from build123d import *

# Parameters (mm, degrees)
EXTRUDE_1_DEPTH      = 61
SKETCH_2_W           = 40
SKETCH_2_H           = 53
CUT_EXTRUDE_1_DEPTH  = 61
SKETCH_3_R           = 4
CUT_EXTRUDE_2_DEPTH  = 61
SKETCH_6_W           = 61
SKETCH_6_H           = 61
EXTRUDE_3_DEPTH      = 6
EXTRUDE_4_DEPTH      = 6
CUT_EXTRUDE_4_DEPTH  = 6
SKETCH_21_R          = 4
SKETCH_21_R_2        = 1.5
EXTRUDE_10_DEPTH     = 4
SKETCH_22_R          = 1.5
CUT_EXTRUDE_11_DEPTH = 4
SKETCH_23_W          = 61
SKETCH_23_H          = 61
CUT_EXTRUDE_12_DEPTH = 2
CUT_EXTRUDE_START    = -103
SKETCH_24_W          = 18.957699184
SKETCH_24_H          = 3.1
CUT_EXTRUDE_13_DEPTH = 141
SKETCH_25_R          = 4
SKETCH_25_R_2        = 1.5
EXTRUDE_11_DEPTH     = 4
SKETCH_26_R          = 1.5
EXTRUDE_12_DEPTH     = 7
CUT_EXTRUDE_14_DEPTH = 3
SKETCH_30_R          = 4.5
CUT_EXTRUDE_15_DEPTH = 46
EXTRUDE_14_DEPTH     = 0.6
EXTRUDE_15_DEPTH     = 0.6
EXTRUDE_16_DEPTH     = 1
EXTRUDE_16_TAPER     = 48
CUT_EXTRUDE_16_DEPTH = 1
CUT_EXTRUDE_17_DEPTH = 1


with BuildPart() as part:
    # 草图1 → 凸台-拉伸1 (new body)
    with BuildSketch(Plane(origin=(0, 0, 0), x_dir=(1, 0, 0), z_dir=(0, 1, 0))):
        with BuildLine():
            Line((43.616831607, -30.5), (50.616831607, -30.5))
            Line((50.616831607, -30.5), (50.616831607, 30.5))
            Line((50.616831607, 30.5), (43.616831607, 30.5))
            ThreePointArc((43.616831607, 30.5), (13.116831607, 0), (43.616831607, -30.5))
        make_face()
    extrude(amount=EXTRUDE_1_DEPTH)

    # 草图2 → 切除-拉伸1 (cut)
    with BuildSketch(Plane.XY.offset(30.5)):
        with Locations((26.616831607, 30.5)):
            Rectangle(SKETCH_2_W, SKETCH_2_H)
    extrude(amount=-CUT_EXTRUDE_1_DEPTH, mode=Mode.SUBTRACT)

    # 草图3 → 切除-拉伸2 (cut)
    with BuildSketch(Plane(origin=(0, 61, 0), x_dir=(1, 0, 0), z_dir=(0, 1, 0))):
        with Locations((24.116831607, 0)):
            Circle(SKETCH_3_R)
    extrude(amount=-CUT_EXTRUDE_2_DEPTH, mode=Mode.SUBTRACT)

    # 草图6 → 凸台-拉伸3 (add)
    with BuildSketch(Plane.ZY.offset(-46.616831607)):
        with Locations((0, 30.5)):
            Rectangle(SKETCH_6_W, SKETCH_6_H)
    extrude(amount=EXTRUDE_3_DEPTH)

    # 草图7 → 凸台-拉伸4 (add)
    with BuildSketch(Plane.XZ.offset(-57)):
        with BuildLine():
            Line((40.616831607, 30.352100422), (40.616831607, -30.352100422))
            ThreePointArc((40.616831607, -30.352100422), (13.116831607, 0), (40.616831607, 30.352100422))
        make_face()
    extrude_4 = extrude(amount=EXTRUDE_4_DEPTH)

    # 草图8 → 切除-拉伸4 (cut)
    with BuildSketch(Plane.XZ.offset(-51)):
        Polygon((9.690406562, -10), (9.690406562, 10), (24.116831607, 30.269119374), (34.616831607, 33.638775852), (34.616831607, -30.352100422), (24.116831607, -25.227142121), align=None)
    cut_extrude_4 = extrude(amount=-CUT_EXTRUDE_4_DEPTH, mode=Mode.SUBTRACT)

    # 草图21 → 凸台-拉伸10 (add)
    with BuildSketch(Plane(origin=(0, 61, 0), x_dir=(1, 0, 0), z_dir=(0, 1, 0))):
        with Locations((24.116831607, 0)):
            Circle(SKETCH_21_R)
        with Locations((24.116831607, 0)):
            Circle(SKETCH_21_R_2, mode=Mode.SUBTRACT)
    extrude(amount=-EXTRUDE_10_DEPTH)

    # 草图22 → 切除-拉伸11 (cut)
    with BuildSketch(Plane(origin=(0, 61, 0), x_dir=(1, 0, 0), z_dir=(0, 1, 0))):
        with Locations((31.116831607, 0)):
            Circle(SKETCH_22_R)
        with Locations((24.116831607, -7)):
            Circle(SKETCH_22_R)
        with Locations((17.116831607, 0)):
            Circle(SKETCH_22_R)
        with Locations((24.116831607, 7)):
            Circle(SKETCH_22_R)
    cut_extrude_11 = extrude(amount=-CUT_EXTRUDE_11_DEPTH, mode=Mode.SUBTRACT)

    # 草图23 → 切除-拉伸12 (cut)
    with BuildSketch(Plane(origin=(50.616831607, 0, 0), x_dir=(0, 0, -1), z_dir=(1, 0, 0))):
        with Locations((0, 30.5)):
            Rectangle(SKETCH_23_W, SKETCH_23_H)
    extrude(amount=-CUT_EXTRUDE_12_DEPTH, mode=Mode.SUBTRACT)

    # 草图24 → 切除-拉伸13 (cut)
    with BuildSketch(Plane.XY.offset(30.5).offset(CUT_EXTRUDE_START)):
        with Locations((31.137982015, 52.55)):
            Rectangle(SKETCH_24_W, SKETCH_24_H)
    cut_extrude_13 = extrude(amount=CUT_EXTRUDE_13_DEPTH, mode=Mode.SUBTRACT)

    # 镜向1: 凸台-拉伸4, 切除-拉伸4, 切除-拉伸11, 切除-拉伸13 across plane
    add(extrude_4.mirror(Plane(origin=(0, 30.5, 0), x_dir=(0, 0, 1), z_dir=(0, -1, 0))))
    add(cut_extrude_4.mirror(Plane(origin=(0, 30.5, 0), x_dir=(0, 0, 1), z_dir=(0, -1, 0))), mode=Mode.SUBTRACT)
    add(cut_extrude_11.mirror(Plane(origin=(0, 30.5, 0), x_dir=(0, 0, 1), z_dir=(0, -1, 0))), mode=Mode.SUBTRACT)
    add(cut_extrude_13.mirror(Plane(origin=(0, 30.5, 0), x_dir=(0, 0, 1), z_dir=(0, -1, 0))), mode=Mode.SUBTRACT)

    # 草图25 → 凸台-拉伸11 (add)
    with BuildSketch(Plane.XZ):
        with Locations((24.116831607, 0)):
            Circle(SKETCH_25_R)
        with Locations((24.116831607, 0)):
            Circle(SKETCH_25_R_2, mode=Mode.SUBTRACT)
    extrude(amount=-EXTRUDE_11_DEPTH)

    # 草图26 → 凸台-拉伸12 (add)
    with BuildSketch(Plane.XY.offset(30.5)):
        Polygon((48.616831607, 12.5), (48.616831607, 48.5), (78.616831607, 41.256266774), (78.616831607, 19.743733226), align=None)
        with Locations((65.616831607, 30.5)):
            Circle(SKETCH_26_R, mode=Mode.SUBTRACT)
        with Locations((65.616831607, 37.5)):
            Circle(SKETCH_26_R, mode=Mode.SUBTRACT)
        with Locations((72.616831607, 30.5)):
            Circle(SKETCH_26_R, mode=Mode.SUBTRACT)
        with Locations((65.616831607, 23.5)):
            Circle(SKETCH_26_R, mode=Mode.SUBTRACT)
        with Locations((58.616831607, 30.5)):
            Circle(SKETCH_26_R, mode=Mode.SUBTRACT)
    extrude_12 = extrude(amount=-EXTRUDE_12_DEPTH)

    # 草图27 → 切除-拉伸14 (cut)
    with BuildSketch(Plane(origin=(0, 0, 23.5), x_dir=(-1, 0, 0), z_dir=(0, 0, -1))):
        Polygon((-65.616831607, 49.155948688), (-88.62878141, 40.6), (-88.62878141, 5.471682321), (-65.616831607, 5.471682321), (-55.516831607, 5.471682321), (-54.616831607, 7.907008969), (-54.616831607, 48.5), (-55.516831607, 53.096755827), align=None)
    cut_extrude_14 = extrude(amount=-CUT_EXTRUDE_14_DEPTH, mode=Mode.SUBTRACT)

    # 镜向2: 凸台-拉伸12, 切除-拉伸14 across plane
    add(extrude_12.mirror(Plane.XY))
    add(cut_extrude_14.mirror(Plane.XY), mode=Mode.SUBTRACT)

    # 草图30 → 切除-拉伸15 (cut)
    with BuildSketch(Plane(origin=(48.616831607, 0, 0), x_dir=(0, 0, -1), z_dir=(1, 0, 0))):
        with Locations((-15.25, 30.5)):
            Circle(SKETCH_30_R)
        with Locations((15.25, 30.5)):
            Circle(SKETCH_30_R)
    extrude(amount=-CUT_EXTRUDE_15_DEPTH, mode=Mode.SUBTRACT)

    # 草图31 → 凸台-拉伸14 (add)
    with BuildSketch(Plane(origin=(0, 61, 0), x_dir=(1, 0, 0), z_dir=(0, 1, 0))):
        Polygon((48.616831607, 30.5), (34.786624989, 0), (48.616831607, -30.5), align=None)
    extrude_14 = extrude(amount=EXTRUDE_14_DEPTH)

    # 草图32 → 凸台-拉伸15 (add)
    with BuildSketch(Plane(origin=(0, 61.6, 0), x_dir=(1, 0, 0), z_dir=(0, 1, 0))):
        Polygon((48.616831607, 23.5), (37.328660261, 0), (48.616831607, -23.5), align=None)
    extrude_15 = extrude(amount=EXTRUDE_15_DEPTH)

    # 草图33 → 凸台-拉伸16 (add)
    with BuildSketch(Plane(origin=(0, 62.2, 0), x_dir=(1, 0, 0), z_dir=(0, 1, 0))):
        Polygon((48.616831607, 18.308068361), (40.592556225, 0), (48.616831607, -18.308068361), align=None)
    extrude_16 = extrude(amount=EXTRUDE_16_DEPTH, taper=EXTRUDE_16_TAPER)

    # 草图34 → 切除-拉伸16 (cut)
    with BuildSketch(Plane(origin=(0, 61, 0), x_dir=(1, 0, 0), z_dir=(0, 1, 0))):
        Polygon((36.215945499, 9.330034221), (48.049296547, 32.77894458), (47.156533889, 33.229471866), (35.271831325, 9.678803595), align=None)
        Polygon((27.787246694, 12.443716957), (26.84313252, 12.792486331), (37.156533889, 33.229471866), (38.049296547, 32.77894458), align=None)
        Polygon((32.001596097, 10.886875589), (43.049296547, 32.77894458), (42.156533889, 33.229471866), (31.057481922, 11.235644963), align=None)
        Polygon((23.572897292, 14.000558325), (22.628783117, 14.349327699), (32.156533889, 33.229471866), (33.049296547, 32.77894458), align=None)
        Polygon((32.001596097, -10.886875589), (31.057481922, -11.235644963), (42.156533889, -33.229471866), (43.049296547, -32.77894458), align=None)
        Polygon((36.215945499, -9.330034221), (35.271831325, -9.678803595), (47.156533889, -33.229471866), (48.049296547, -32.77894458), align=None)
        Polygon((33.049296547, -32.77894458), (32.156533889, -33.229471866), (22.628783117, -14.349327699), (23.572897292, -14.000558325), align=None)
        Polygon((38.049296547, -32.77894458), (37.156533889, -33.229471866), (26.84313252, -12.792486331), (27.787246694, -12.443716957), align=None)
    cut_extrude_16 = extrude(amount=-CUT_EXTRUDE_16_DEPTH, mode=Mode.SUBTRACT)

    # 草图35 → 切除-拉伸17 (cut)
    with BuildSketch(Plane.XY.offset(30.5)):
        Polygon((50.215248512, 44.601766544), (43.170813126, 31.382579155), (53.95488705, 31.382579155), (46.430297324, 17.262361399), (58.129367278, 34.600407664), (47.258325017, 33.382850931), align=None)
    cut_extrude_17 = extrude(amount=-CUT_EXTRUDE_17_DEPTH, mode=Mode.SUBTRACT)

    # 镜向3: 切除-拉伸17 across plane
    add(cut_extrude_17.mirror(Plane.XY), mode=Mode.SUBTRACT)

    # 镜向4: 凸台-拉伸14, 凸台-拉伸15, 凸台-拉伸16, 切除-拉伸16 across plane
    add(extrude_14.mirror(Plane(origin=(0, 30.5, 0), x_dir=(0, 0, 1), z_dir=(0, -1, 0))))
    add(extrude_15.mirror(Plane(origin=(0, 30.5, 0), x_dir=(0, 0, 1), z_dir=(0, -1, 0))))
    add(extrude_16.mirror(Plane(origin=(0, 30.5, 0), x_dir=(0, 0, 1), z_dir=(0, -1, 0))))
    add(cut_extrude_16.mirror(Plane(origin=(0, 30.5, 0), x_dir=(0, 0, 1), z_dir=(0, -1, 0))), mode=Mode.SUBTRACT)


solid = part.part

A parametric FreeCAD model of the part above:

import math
import FreeCAD as App
import Part
import Sketcher
from FreeCAD import Vector
Q = App.Units.Quantity

doc = App.newDocument("Part")
body = doc.addObject("PartDesign::Body", "Body")

sketch1 = doc.addObject("Sketcher::SketchObject", "Sketch")
body.addObject(sketch1)
sketch1.AttachmentSupport = (doc.XZ_Plane, [""])
sketch1.MapMode = "FlatFace"
sketch1.addGeometry([
    Part.LineSegment(Vector(43.616832, 30.5, 0), Vector(50.616832, 30.5, 0)),
    Part.LineSegment(Vector(50.616832, 30.5, 0), Vector(50.616832, -30.5, 0)),
    Part.LineSegment(Vector(50.616832, -30.5, 0), Vector(43.616832, -30.5, 0)),
    Part.ArcOfCircle(Part.Circle(Vector(43.616832, 0, 0), Vector(0, 0, 1), 30.5), math.radians(90), math.radians(270)),
], False)
sketch1.addConstraint([
    Sketcher.Constraint("Coincident", 0, 2, 1, 1),
    Sketcher.Constraint("Coincident", 1, 2, 2, 1),
    Sketcher.Constraint("Tangent", 2, 2, 3, 2),
    Sketcher.Constraint("Tangent", 3, 1, 0, 1),
    Sketcher.Constraint("Horizontal", 0),
    Sketcher.Constraint("Vertical", 1),
    Sketcher.Constraint("Horizontal", 2),
    Sketcher.Constraint("PointOnObject", 3, 3, -1),
    Sketcher.Constraint("Radius", 3, Q("30.5 mm")),
    Sketcher.Constraint("DistanceX", 0, 1, 0, 2, Q("7 mm")),
    Sketcher.Constraint("DistanceX", -1, 1, 3, 3, Q("43.616832 mm")),
])
pad1 = doc.addObject("PartDesign::Pad", "Pad")
body.addObject(pad1)
pad1.Profile = sketch1
pad1.Length = 61
pad1.Reversed = True

sketch2 = doc.addObject("Sketcher::SketchObject", "Sketch001")
body.addObject(sketch2)
sketch2.AttachmentSupport = (doc.XY_Plane, [""])
sketch2.MapMode = "FlatFace"
sketch2.AttachmentOffset = App.Placement(Vector(0, 0, 30.5), App.Rotation())
sketch2.addGeometry([
    Part.LineSegment(Vector(6.616832, 57, 0), Vector(6.616832, 4, 0)),
    Part.LineSegment(Vector(6.616832, 4, 0), Vector(46.616832, 4, 0)),
    Part.LineSegment(Vector(46.616832, 4, 0), Vector(46.616832, 57, 0)),
    Part.LineSegment(Vector(46.616832, 57, 0), Vector(6.616832, 57, 0)),
], False)
sketch2.addConstraint([
    Sketcher.Constraint("Coincident", 0, 2, 1, 1),
    Sketcher.Constraint("Coincident", 1, 2, 2, 1),
    Sketcher.Constraint("Coincident", 2, 2, 3, 1),
    Sketcher.Constraint("Coincident", 3, 2, 0, 1),
    Sketcher.Constraint("Vertical", 0),
    Sketcher.Constraint("Horizontal", 1),
    Sketcher.Constraint("Vertical", 2),
    Sketcher.Constraint("Horizontal", 3),
    Sketcher.Constraint("DistanceX", 1, 1, 1, 2, Q("40 mm")),
    Sketcher.Constraint("DistanceY", 0, 2, 0, 1, Q("53 mm")),
    Sketcher.Constraint("DistanceY", -1, 1, 0, 2, Q("4 mm")),
    Sketcher.Constraint("DistanceX", -1, 1, 0, 2, Q("6.616832 mm")),
])
pocket1 = doc.addObject("PartDesign::Pocket", "Pocket")
body.addObject(pocket1)
pocket1.Profile = sketch2
pocket1.Length = 61

sketch3 = doc.addObject("Sketcher::SketchObject", "Sketch002")
body.addObject(sketch3)
sketch3.AttachmentSupport = (doc.XZ_Plane, [""])
sketch3.MapMode = "FlatFace"
sketch3.AttachmentOffset = App.Placement(Vector(0, 0, -61), App.Rotation())
sketch3.addGeometry(Part.Circle(Vector(24.116832, 0, 0), Vector(0, 0, 1), 4), False)
sketch3.addConstraint([
    Sketcher.Constraint("PointOnObject", 0, 3, -1),
    Sketcher.Constraint("Diameter", 0, Q("8 mm")),
    Sketcher.Constraint("DistanceX", -1, 1, 0, 3, Q("24.116832 mm")),
])
pocket2 = doc.addObject("PartDesign::Pocket", "Pocket001")
body.addObject(pocket2)
pocket2.Profile = sketch3
pocket2.Length = 61
pocket2.Reversed = True

sketch4 = doc.addObject("Sketcher::SketchObject", "Sketch003")
body.addObject(sketch4)
sketch4.AttachmentSupport = (doc.YZ_Plane, [""])
sketch4.MapMode = "FlatFace"
sketch4.AttachmentOffset = App.Placement(Vector(0, 0, 46.616832), App.Rotation())
sketch4.addGeometry([
    Part.LineSegment(Vector(61, -30.5, 0), Vector(0, -30.5, 0)),
    Part.LineSegment(Vector(0, -30.5, 0), Vector(0, 30.5, 0)),
    Part.LineSegment(Vector(0, 30.5, 0), Vector(61, 30.5, 0)),
    Part.LineSegment(Vector(61, 30.5, 0), Vector(61, -30.5, 0)),
], False)
sketch4.addConstraint([
    Sketcher.Constraint("Coincident", 0, 2, 1, 1),
    Sketcher.Constraint("Coincident", 1, 2, 2, 1),
    Sketcher.Constraint("Coincident", 2, 2, 3, 1),
    Sketcher.Constraint("Coincident", 3, 2, 0, 1),
    Sketcher.Constraint("Horizontal", 0),
    Sketcher.Constraint("Vertical", 1),
    Sketcher.Constraint("Horizontal", 2),
    Sketcher.Constraint("Vertical", 3),
    Sketcher.Constraint("Symmetric", 0, 2, 1, 2, -1, 1),
    Sketcher.Constraint("Equal", 2, 1),
    Sketcher.Constraint("DistanceX", 0, 2, 0, 1, Q("61 mm")),
])
pad2 = doc.addObject("PartDesign::Pad", "Pad001")
body.addObject(pad2)
pad2.Profile = sketch4
pad2.Length = 6
pad2.Reversed = True

sketch5 = doc.addObject("Sketcher::SketchObject", "Sketch004")
body.addObject(sketch5)
sketch5.AttachmentSupport = (doc.XZ_Plane, [""])
sketch5.MapMode = "FlatFace"
sketch5.AttachmentOffset = App.Placement(Vector(0, 0, -57), App.Rotation())
sketch5.addGeometry([
    Part.LineSegment(Vector(40.616832, -30.3521, 0), Vector(40.616832, 30.3521, 0)),
    Part.ArcOfCircle(Part.Circle(Vector(43.616832, 0, 0), Vector(0, 0, 1), 30.5), math.radians(95.644778), math.radians(264.355222)),
], False)
sketch5.addConstraint([
    Sketcher.Constraint("Coincident", 0, 1, 1, 2),
    Sketcher.Constraint("Coincident", 1, 1, 0, 2),
    Sketcher.Constraint("Vertical", 0),
    Sketcher.Constraint("PointOnObject", 1, 3, -1),
    Sketcher.Constraint("Radius", 1, Q("30.5 mm")),
    Sketcher.Constraint("DistanceX", 0, 1, 1, 3, Q("3 mm")),
    Sketcher.Constraint("DistanceX", -1, 1, 1, 3, Q("43.616832 mm")),
])
pad3 = doc.addObject("PartDesign::Pad", "Pad002")
body.addObject(pad3)
pad3.Profile = sketch5
pad3.Length = 6

sketch6 = doc.addObject("Sketcher::SketchObject", "Sketch005")
body.addObject(sketch6)
sketch6.AttachmentSupport = (doc.XZ_Plane, [""])
sketch6.MapMode = "FlatFace"
sketch6.AttachmentOffset = App.Placement(Vector(0, 0, -51), App.Rotation())
sketch6.addGeometry([
    Part.LineSegment(Vector(9.690407, 10, 0), Vector(9.690407, -10, 0)),
    Part.LineSegment(Vector(9.690407, -10, 0), Vector(24.116832, -25.227142, 0)),
    Part.LineSegment(Vector(24.116832, -25.227142, 0), Vector(34.616832, -30.3521, 0)),
    Part.LineSegment(Vector(34.616832, -30.3521, 0), Vector(34.616832, 33.638776, 0)),
    Part.LineSegment(Vector(34.616832, 33.638776, 0), Vector(24.116832, 30.269119, 0)),
    Part.LineSegment(Vector(24.116832, 30.269119, 0), Vector(9.690407, 10, 0)),
], False)
sketch6.addConstraint([
    Sketcher.Constraint("Coincident", 0, 2, 1, 1),
    Sketcher.Constraint("Coincident", 1, 2, 2, 1),
    Sketcher.Constraint("Coincident", 2, 2, 3, 1),
    Sketcher.Constraint("Coincident", 3, 2, 4, 1),
    Sketcher.Constraint("Coincident", 4, 2, 5, 1),
    Sketcher.Constraint("Coincident", 5, 2, 0, 1),
    Sketcher.Constraint("Vertical", 0),
    Sketcher.Constraint("Vertical", 3),
    Sketcher.Constraint("Vertical", 1, 2, 4, 2),
    Sketcher.Constraint("DistanceY", 0, 2, 0, 1, Q("20 mm")),
    Sketcher.Constraint("DistanceY", 0, 2, -1, 1, Q("10 mm")),
    Sketcher.Constraint("DistanceX", 1, 2, 2, 2, Q("10.5 mm")),
    Sketcher.Constraint("DistanceY", 2, 2, -1, 1, Q("30.3521 mm")),
    Sketcher.Constraint("Distance", 1, Q("20.975881 mm")),
    Sketcher.Constraint("Distance", 2, Q("11.683972 mm")),
    Sketcher.Constraint("DistanceY", 3, 1, 3, 2, Q("63.990876 mm")),
    Sketcher.Constraint("DistanceX", -1, 1, 1, 2, Q("24.116832 mm")),
    Sketcher.Constraint("DistanceY", -1, 1, 4, 2, Q("30.269119 mm")),
])
pocket3 = doc.addObject("PartDesign::Pocket", "Pocket002")
body.addObject(pocket3)
pocket3.Profile = sketch6
pocket3.Length = 6

sketch7 = doc.addObject("Sketcher::SketchObject", "Sketch006")
body.addObject(sketch7)
sketch7.AttachmentSupport = (doc.XZ_Plane, [""])
sketch7.MapMode = "FlatFace"
sketch7.AttachmentOffset = App.Placement(Vector(0, 0, -61), App.Rotation())
sketch7.addGeometry([
    Part.Circle(Vector(24.116832, 0, 0), Vector(0, 0, 1), 4),
    Part.Circle(Vector(24.116832, 0, 0), Vector(0, 0, 1), 1.5),
], False)
sketch7.addConstraint([
    Sketcher.Constraint("Coincident", 1, 3, 0, 3),
    Sketcher.Constraint("PointOnObject", 0, 3, -1),
    Sketcher.Constraint("Diameter", 0, Q("8 mm")),
    Sketcher.Constraint("Diameter", 1, Q("3 mm")),
    Sketcher.Constraint("DistanceX", -1, 1, 0, 3, Q("24.116832 mm")),
])
pad4 = doc.addObject("PartDesign::Pad", "Pad003")
body.addObject(pad4)
pad4.Profile = sketch7
pad4.Length = 4

sketch8 = doc.addObject("Sketcher::SketchObject", "Sketch007")
body.addObject(sketch8)
sketch8.AttachmentSupport = (doc.XZ_Plane, [""])
sketch8.MapMode = "FlatFace"
sketch8.AttachmentOffset = App.Placement(Vector(0, 0, -61), App.Rotation())
sketch8.addGeometry([
    Part.Circle(Vector(31.116832, 0, 0), Vector(0, 0, 1), 1.5),
    Part.Circle(Vector(24.116832, 7, 0), Vector(0, 0, 1), 1.5),
    Part.Circle(Vector(17.116832, 0, 0), Vector(0, 0, 1), 1.5),
    Part.Circle(Vector(24.116832, -7, 0), Vector(0, 0, 1), 1.5),
], False)
sketch8.addConstraint([
    Sketcher.Constraint("Equal", 0, 1),
    Sketcher.Constraint("Equal", 1, 2),
    Sketcher.Constraint("Equal", 2, 3),
    Sketcher.Constraint("Symmetric", 1, 3, 3, 3, -1),
    Sketcher.Constraint("PointOnObject", 0, 3, -1),
    Sketcher.Constraint("PointOnObject", 2, 3, -1),
    Sketcher.Constraint("Diameter", 0, Q("3 mm")),
    Sketcher.Constraint("DistanceY", -1, 1, 1, 3, Q("7 mm")),
    Sketcher.Constraint("DistanceX", 1, 3, 0, 3, Q("7 mm")),
    Sketcher.Constraint("DistanceX", 2, 3, 1, 3, Q("7 mm")),
    Sketcher.Constraint("DistanceX", -1, 1, 0, 3, Q("31.116832 mm")),
])
pocket4 = doc.addObject("PartDesign::Pocket", "Pocket003")
body.addObject(pocket4)
pocket4.Profile = sketch8
pocket4.Length = 4
pocket4.Reversed = True

sketch9 = doc.addObject("Sketcher::SketchObject", "Sketch008")
body.addObject(sketch9)
sketch9.AttachmentSupport = (doc.YZ_Plane, [""])
sketch9.MapMode = "FlatFace"
sketch9.AttachmentOffset = App.Placement(Vector(0, 0, 50.616832), App.Rotation())
sketch9.addGeometry([
    Part.LineSegment(Vector(61, 30.5, 0), Vector(0, 30.5, 0)),
    Part.LineSegment(Vector(0, 30.5, 0), Vector(0, -30.5, 0)),
    Part.LineSegment(Vector(0, -30.5, 0), Vector(61, -30.5, 0)),
    Part.LineSegment(Vector(61, -30.5, 0), Vector(61, 30.5, 0)),
], False)
sketch9.addConstraint([
    Sketcher.Constraint("Coincident", 0, 2, 1, 1),
    Sketcher.Constraint("Coincident", 1, 2, 2, 1),
    Sketcher.Constraint("Coincident", 2, 2, 3, 1),
    Sketcher.Constraint("Coincident", 3, 2, 0, 1),
    Sketcher.Constraint("Horizontal", 0),
    Sketcher.Constraint("Vertical", 1),
    Sketcher.Constraint("Horizontal", 2),
    Sketcher.Constraint("Vertical", 3),
    Sketcher.Constraint("Symmetric", 0, 2, 1, 2, -1, 1),
    Sketcher.Constraint("Equal", 2, 1),
    Sketcher.Constraint("DistanceX", 0, 2, 0, 1, Q("61 mm")),
])
pocket5 = doc.addObject("PartDesign::Pocket", "Pocket004")
body.addObject(pocket5)
pocket5.Profile = sketch9
pocket5.Length = 2

sketch10 = doc.addObject("Sketcher::SketchObject", "Sketch009")
body.addObject(sketch10)
sketch10.AttachmentSupport = (doc.XY_Plane, [""])
sketch10.MapMode = "FlatFace"
sketch10.AttachmentOffset = App.Placement(Vector(0, 0, -72.5), App.Rotation())
sketch10.addGeometry([
    Part.LineSegment(Vector(21.659132, 54.1, 0), Vector(21.659132, 51, 0)),
    Part.LineSegment(Vector(21.659132, 51, 0), Vector(40.616832, 51, 0)),
    Part.LineSegment(Vector(40.616832, 51, 0), Vector(40.616832, 54.1, 0)),
    Part.LineSegment(Vector(40.616832, 54.1, 0), Vector(21.659132, 54.1, 0)),
], False)
sketch10.addConstraint([
    Sketcher.Constraint("Coincident", 0, 2, 1, 1),
    Sketcher.Constraint("Coincident", 1, 2, 2, 1),
    Sketcher.Constraint("Coincident", 2, 2, 3, 1),
    Sketcher.Constraint("Coincident", 3, 2, 0, 1),
    Sketcher.Constraint("Vertical", 0),
    Sketcher.Constraint("Horizontal", 1),
    Sketcher.Constraint("Vertical", 2),
    Sketcher.Constraint("Horizontal", 3),
    Sketcher.Constraint("DistanceY", 0, 2, 0, 1, Q("3.1 mm")),
    Sketcher.Constraint("DistanceY", -1, 1, 0, 2, Q("51 mm")),
    Sketcher.Constraint("DistanceX", 1, 1, 1, 2, Q("18.957699 mm")),
    Sketcher.Constraint("DistanceX", -1, 1, 1, 2, Q("40.616832 mm")),
])
pocket6 = doc.addObject("PartDesign::Pocket", "Pocket005")
body.addObject(pocket6)
pocket6.Profile = sketch10
pocket6.Length = 141
pocket6.Reversed = True
doc.recompute()

datumplane = doc.addObject("PartDesign::Plane", "DatumPlane")
body.addObject(datumplane)
datumplane.AttachmentSupport = (doc.XZ_Plane, [""])
datumplane.MapMode = "FlatFace"
datumplane.AttachmentOffset = App.Placement(Vector(0, 0, -30.5), App.Rotation())
mirrored = doc.addObject("PartDesign::Mirrored", "Mirrored")
body.addObject(mirrored)
mirrored.Originals = [pad3, pocket3, pocket4, pocket6]
mirrored.MirrorPlane = (datumplane, [""])
body.Tip = mirrored

sketch11 = doc.addObject("Sketcher::SketchObject", "Sketch010")
body.addObject(sketch11)
sketch11.AttachmentSupport = (doc.XZ_Plane, [""])
sketch11.MapMode = "FlatFace"
sketch11.addGeometry([
    Part.Circle(Vector(24.116832, 0, 0), Vector(0, 0, 1), 4),
    Part.Circle(Vector(24.116832, 0, 0), Vector(0, 0, 1), 1.5),
], False)
sketch11.addConstraint([
    Sketcher.Constraint("Coincident", 1, 3, 0, 3),
    Sketcher.Constraint("PointOnObject", 0, 3, -1),
    Sketcher.Constraint("Diameter", 0, Q("8 mm")),
    Sketcher.Constraint("Diameter", 1, Q("3 mm")),
    Sketcher.Constraint("DistanceX", -1, 1, 0, 3, Q("24.116832 mm")),
])
pad5 = doc.addObject("PartDesign::Pad", "Pad004")
body.addObject(pad5)
pad5.Profile = sketch11
pad5.Length = 4
pad5.Reversed = True

sketch12 = doc.addObject("Sketcher::SketchObject", "Sketch011")
body.addObject(sketch12)
sketch12.AttachmentSupport = (doc.XY_Plane, [""])
sketch12.MapMode = "FlatFace"
sketch12.AttachmentOffset = App.Placement(Vector(0, 0, 30.5), App.Rotation())
sketch12.addGeometry([
    Part.LineSegment(Vector(48.616832, 48.5, 0), Vector(48.616832, 12.5, 0)),
    Part.LineSegment(Vector(48.616832, 12.5, 0), Vector(78.616832, 19.743733, 0)),
    Part.LineSegment(Vector(78.616832, 19.743733, 0), Vector(78.616832, 41.256267, 0)),
    Part.LineSegment(Vector(78.616832, 41.256267, 0), Vector(48.616832, 48.5, 0)),
    Part.Circle(Vector(65.616832, 23.5, 0), Vector(0, 0, 1), 1.5),
    Part.Circle(Vector(72.616832, 30.5, 0), Vector(0, 0, 1), 1.5),
    Part.Circle(Vector(65.616832, 30.5, 0), Vector(0, 0, 1), 1.5),
    Part.Circle(Vector(58.616832, 30.5, 0), Vector(0, 0, 1), 1.5),
    Part.Circle(Vector(65.616832, 37.5, 0), Vector(0, 0, 1), 1.5),
], False)
sketch12.addConstraint([
    Sketcher.Constraint("Coincident", 0, 2, 1, 1),
    Sketcher.Constraint("Coincident", 1, 2, 2, 1),
    Sketcher.Constraint("Coincident", 2, 2, 3, 1),
    Sketcher.Constraint("Coincident", 3, 2, 0, 1),
    Sketcher.Constraint("Vertical", 0),
    Sketcher.Constraint("Vertical", 2),
    Sketcher.Constraint("Equal", 4, 5),
    Sketcher.Constraint("Equal", 5, 6),
    Sketcher.Constraint("Equal", 6, 7),
    Sketcher.Constraint("Equal", 7, 8),
    Sketcher.Constraint("Horizontal", 5, 3, 6, 3),
    Sketcher.Constraint("Horizontal", 6, 3, 7, 3),
    Sketcher.Constraint("Vertical", 4, 3, 6, 3),
    Sketcher.Constraint("Vertical", 6, 3, 8, 3),
    Sketcher.Constraint("Equal", 1, 3),
    Sketcher.Constraint("Diameter", 4, Q("3 mm")),
    Sketcher.Constraint("DistanceY", 0, 2, 0, 1, Q("36 mm")),
    Sketcher.Constraint("DistanceX", 4, 3, 5, 3, Q("7 mm")),
    Sketcher.Constraint("DistanceY", 4, 3, 5, 3, Q("7 mm")),
    Sketcher.Constraint("DistanceX", 7, 3, 6, 3, Q("7 mm")),
    Sketcher.Constraint("DistanceY", 6, 3, 8, 3, Q("7 mm")),
    Sketcher.Constraint("DistanceX", 0, 2, 4, 3, Q("17 mm")),
    Sketcher.Constraint("DistanceY", 0, 2, 4, 3, Q("11 mm")),
    Sketcher.Constraint("DistanceX", 5, 3, 1, 2, Q("6 mm")),
    Sketcher.Constraint("DistanceY", -1, 1, 4, 3, Q("23.5 mm")),
    Sketcher.Constraint("Distance", 1, Q("30.86214 mm")),
    Sketcher.Constraint("DistanceX", -1, 1, 4, 3, Q("65.616832 mm")),
])
pad6 = doc.addObject("PartDesign::Pad", "Pad005")
body.addObject(pad6)
pad6.Profile = sketch12
pad6.Length = 7
pad6.Reversed = True

sketch13 = doc.addObject("Sketcher::SketchObject", "Sketch012")
body.addObject(sketch13)
sketch13.AttachmentSupport = (doc.XY_Plane, [""])
sketch13.MapMode = "FlatFace"
sketch13.AttachmentOffset = App.Placement(Vector(0, 0, 23.5), App.Rotation())
sketch13.addGeometry([
    Part.LineSegment(Vector(65.616832, 49.155949, 0), Vector(88.628781, 40.6, 0)),
    Part.LineSegment(Vector(88.628781, 40.6, 0), Vector(88.628781, 5.471682, 0)),
    Part.LineSegment(Vector(88.628781, 5.471682, 0), Vector(55.516832, 5.471682, 0)),
    Part.LineSegment(Vector(55.516832, 5.471682, 0), Vector(54.616832, 7.907009, 0)),
    Part.LineSegment(Vector(54.616832, 7.907009, 0), Vector(54.616832, 48.5, 0)),
    Part.LineSegment(Vector(54.616832, 48.5, 0), Vector(55.516832, 53.096756, 0)),
    Part.LineSegment(Vector(55.516832, 53.096756, 0), Vector(65.616832, 49.155949, 0)),
], False)
sketch13.addConstraint([
    Sketcher.Constraint("Coincident", 0, 2, 1, 1),
    Sketcher.Constraint("Coincident", 1, 2, 2, 1),
    Sketcher.Constraint("Coincident", 2, 2, 3, 1),
    Sketcher.Constraint("Coincident", 3, 2, 4, 1),
    Sketcher.Constraint("Coincident", 4, 2, 5, 1),
    Sketcher.Constraint("Coincident", 5, 2, 6, 1),
    Sketcher.Constraint("Coincident", 6, 2, 0, 1),
    Sketcher.Constraint("Vertical", 1),
    Sketcher.Constraint("Horizontal", 2),
    Sketcher.Constraint("Vertical", 4),
    Sketcher.Constraint("Vertical", 2, 2, 5, 2),
    Sketcher.Constraint("DistanceX", 4, 2, 6, 2, Q("11 mm")),
    Sketcher.Constraint("DistanceY", -1, 1, 0, 2, Q("40.6 mm")),
    Sketcher.Constraint("DistanceY", -1, 1, 4, 2, Q("48.5 mm")),
    Sketcher.Constraint("DistanceX", 3, 2, 2, 2, Q("0.9 mm")),
    Sketcher.Constraint("DistanceX", 2, 2, 2, 1, Q("33.11195 mm")),
    Sketcher.Constraint("DistanceY", 4, 1, 4, 2, Q("40.592991 mm")),
    Sketcher.Constraint("Distance", 0, Q("24.551051 mm")),
    Sketcher.Constraint("Distance", 3, Q("2.596308 mm")),
    Sketcher.Constraint("DistanceX", -1, 1, 0, 2, Q("88.628781 mm")),
    Sketcher.Constraint("Distance", 5, Q("4.684033 mm")),
])
pocket7 = doc.addObject("PartDesign::Pocket", "Pocket006")
body.addObject(pocket7)
pocket7.Profile = sketch13
pocket7.Length = 3
pocket7.Reversed = True
doc.recompute()

mirrored2 = doc.addObject("PartDesign::Mirrored", "Mirrored001")
body.addObject(mirrored2)
mirrored2.Originals = [pad6, pocket7]
mirrored2.MirrorPlane = (doc.XY_Plane, [""])
body.Tip = mirrored2

sketch14 = doc.addObject("Sketcher::SketchObject", "Sketch013")
body.addObject(sketch14)
sketch14.AttachmentSupport = (doc.YZ_Plane, [""])
sketch14.MapMode = "FlatFace"
sketch14.AttachmentOffset = App.Placement(Vector(0, 0, 48.616832), App.Rotation())
sketch14.addGeometry([
    Part.Circle(Vector(30.5, 15.25, 0), Vector(0, 0, 1), 4.5),
    Part.Circle(Vector(30.5, -15.25, 0), Vector(0, 0, 1), 4.5),
], False)
sketch14.addConstraint([
    Sketcher.Constraint("Equal", 0, 1),
    Sketcher.Constraint("Symmetric", 0, 3, 1, 3, -1),
    Sketcher.Constraint("Diameter", 0, Q("9 mm")),
    Sketcher.Constraint("DistanceX", -1, 1, 0, 3, Q("30.5 mm")),
    Sketcher.Constraint("DistanceY", 1, 3, 0, 3, Q("30.5 mm")),
])
pocket8 = doc.addObject("PartDesign::Pocket", "Pocket007")
body.addObject(pocket8)
pocket8.Profile = sketch14
pocket8.Length = 46

sketch15 = doc.addObject("Sketcher::SketchObject", "Sketch014")
body.addObject(sketch15)
sketch15.AttachmentSupport = (doc.XZ_Plane, [""])
sketch15.MapMode = "FlatFace"
sketch15.AttachmentOffset = App.Placement(Vector(0, 0, -61), App.Rotation())
sketch15.addGeometry([
    Part.LineSegment(Vector(48.616832, -30.5, 0), Vector(34.786625, 0, 0)),
    Part.LineSegment(Vector(34.786625, 0, 0), Vector(48.616832, 30.5, 0)),
    Part.LineSegment(Vector(48.616832, 30.5, 0), Vector(48.616832, -30.5, 0)),
], False)
sketch15.addConstraint([
    Sketcher.Constraint("Coincident", 0, 2, 1, 1),
    Sketcher.Constraint("Coincident", 1, 2, 2, 1),
    Sketcher.Constraint("Coincident", 2, 2, 0, 1),
    Sketcher.Constraint("Vertical", 2),
    Sketcher.Constraint("PointOnObject", 0, 2, -1),
    Sketcher.Constraint("Equal", 0, 1),
    Sketcher.Constraint("DistanceY", 2, 2, 2, 1, Q("61 mm")),
    Sketcher.Constraint("Distance", 0, Q("33.489172 mm")),
    Sketcher.Constraint("DistanceX", -1, 1, 1, 2, Q("48.616832 mm")),
])
pad7 = doc.addObject("PartDesign::Pad", "Pad006")
body.addObject(pad7)
pad7.Profile = sketch15
pad7.Length = 0.6
pad7.Reversed = True

sketch16 = doc.addObject("Sketcher::SketchObject", "Sketch015")
body.addObject(sketch16)
sketch16.AttachmentSupport = (doc.XZ_Plane, [""])
sketch16.MapMode = "FlatFace"
sketch16.AttachmentOffset = App.Placement(Vector(0, 0, -61.6), App.Rotation())
sketch16.addGeometry([
    Part.LineSegment(Vector(48.616832, -23.5, 0), Vector(37.32866, 0, 0)),
    Part.LineSegment(Vector(37.32866, 0, 0), Vector(48.616832, 23.5, 0)),
    Part.LineSegment(Vector(48.616832, 23.5, 0), Vector(48.616832, -23.5, 0)),
], False)
sketch16.addConstraint([
    Sketcher.Constraint("Coincident", 0, 2, 1, 1),
    Sketcher.Constraint("Coincident", 1, 2, 2, 1),
    Sketcher.Constraint("Coincident", 2, 2, 0, 1),
    Sketcher.Constraint("Vertical", 2),
    Sketcher.Constraint("PointOnObject", 0, 2, -1),
    Sketcher.Constraint("Equal", 0, 1),
    Sketcher.Constraint("DistanceY", 2, 2, 2, 1, Q("47 mm")),
    Sketcher.Constraint("DistanceX", -1, 1, 0, 2, Q("37.32866 mm")),
    Sketcher.Constraint("DistanceX", -1, 1, 1, 2, Q("48.616832 mm")),
])
pad8 = doc.addObject("PartDesign::Pad", "Pad007")
body.addObject(pad8)
pad8.Profile = sketch16
pad8.Length = 0.6
pad8.Reversed = True

sketch17 = doc.addObject("Sketcher::SketchObject", "Sketch016")
body.addObject(sketch17)
sketch17.AttachmentSupport = (doc.XZ_Plane, [""])
sketch17.MapMode = "FlatFace"
sketch17.AttachmentOffset = App.Placement(Vector(0, 0, -62.2), App.Rotation())
sketch17.addGeometry([
    Part.LineSegment(Vector(48.616832, -18.308068, 0), Vector(40.592556, 0, 0)),
    Part.LineSegment(Vector(40.592556, 0, 0), Vector(48.616832, 18.308068, 0)),
    Part.LineSegment(Vector(48.616832, 18.308068, 0), Vector(48.616832, -18.308068, 0)),
], False)
sketch17.addConstraint([
    Sketcher.Constraint("Coincident", 0, 2, 1, 1),
    Sketcher.Constraint("Coincident", 1, 2, 2, 1),
    Sketcher.Constraint("Coincident", 2, 2, 0, 1),
    Sketcher.Constraint("Vertical", 2),
    Sketcher.Constraint("PointOnObject", 0, 2, -1),
    Sketcher.Constraint("Equal", 0, 1),
    Sketcher.Constraint("DistanceY", 2, 2, 2, 1, Q("36.616137 mm")),
    Sketcher.Constraint("DistanceX", -1, 1, 1, 2, Q("48.616832 mm")),
    Sketcher.Constraint("Distance", 0, Q("19.989356 mm")),
])
pad9 = doc.addObject("PartDesign::Pad", "Pad008")
body.addObject(pad9)
pad9.Profile = sketch17
pad9.Length = 1
pad9.Reversed = True
pad9.TaperAngle = -48

sketch18 = doc.addObject("Sketcher::SketchObject", "Sketch017")
body.addObject(sketch18)
sketch18.AttachmentSupport = (doc.XZ_Plane, [""])
sketch18.MapMode = "FlatFace"
sketch18.AttachmentOffset = App.Placement(Vector(0, 0, -61), App.Rotation())
sketch18.addGeometry([
    Part.LineSegment(Vector(36.215945, -9.330034, 0), Vector(48.049297, -32.778945, 0)),
    Part.LineSegment(Vector(48.049297, -32.778945, 0), Vector(47.156534, -33.229472, 0)),
    Part.LineSegment(Vector(47.156534, -33.229472, 0), Vector(35.271831, -9.678804, 0)),
    Part.LineSegment(Vector(35.271831, -9.678804, 0), Vector(36.215945, -9.330034, 0)),
    Part.LineSegment(Vector(26.843133, -12.792486, 0), Vector(27.787247, -12.443717, 0)),
    Part.LineSegment(Vector(27.787247, -12.443717, 0), Vector(38.049297, -32.778945, 0)),
    Part.LineSegment(Vector(38.049297, -32.778945, 0), Vector(37.156534, -33.229472, 0)),
    Part.LineSegment(Vector(37.156534, -33.229472, 0), Vector(26.843133, -12.792486, 0)),
    Part.LineSegment(Vector(32.001596, -10.886876, 0), Vector(43.049297, -32.778945, 0)),
    Part.LineSegment(Vector(43.049297, -32.778945, 0), Vector(42.156534, -33.229472, 0)),
    Part.LineSegment(Vector(42.156534, -33.229472, 0), Vector(31.057482, -11.235645, 0)),
    Part.LineSegment(Vector(31.057482, -11.235645, 0), Vector(32.001596, -10.886876, 0)),
    Part.LineSegment(Vector(22.628783, -14.349328, 0), Vector(23.572897, -14.000558, 0)),
    Part.LineSegment(Vector(23.572897, -14.000558, 0), Vector(33.049297, -32.778945, 0)),
    Part.LineSegment(Vector(33.049297, -32.778945, 0), Vector(32.156534, -33.229472, 0)),
    Part.LineSegment(Vector(32.156534, -33.229472, 0), Vector(22.628783, -14.349328, 0)),
    Part.LineSegment(Vector(32.001596, 10.886876, 0), Vector(31.057482, 11.235645, 0)),
    Part.LineSegment(Vector(31.057482, 11.235645, 0), Vector(42.156534, 33.229472, 0)),
    Part.LineSegment(Vector(42.156534, 33.229472, 0), Vector(43.049297, 32.778945, 0)),
    Part.LineSegment(Vector(43.049297, 32.778945, 0), Vector(32.001596, 10.886876, 0)),
    Part.LineSegment(Vector(36.215945, 9.330034, 0), Vector(35.271831, 9.678804, 0)),
    Part.LineSegment(Vector(35.271831, 9.678804, 0), Vector(47.156534, 33.229472, 0)),
    Part.LineSegment(Vector(47.156534, 33.229472, 0), Vector(48.049297, 32.778945, 0)),
    Part.LineSegment(Vector(48.049297, 32.778945, 0), Vector(36.215945, 9.330034, 0)),
    Part.LineSegment(Vector(32.156534, 33.229472, 0), Vector(33.049297, 32.778945, 0)),
    Part.LineSegment(Vector(33.049297, 32.778945, 0), Vector(23.572897, 14.000558, 0)),
    Part.LineSegment(Vector(23.572897, 14.000558, 0), Vector(22.628783, 14.349328, 0)),
    Part.LineSegment(Vector(22.628783, 14.349328, 0), Vector(32.156534, 33.229472, 0)),
    Part.LineSegment(Vector(37.156534, 33.229472, 0), Vector(38.049297, 32.778945, 0)),
    Part.LineSegment(Vector(38.049297, 32.778945, 0), Vector(27.787247, 12.443717, 0)),
    Part.LineSegment(Vector(27.787247, 12.443717, 0), Vector(26.843133, 12.792486, 0)),
    Part.LineSegment(Vector(26.843133, 12.792486, 0), Vector(37.156534, 33.229472, 0)),
], False)
sketch18.addConstraint([
    Sketcher.Constraint("Coincident", 0, 2, 1, 1),
    Sketcher.Constraint("Coincident", 1, 2, 2, 1),
    Sketcher.Constraint("Coincident", 2, 2, 3, 1),
    Sketcher.Constraint("Coincident", 3, 2, 0, 1),
    Sketcher.Constraint("Coincident", 4, 2, 5, 1),
    Sketcher.Constraint("Coincident", 5, 2, 6, 1),
    Sketcher.Constraint("Coincident", 6, 2, 7, 1),
    Sketcher.Constraint("Coincident", 7, 2, 4, 1),
    Sketcher.Constraint("Coincident", 8, 2, 9, 1),
    Sketcher.Constraint("Coincident", 9, 2, 10, 1),
    Sketcher.Constraint("Coincident", 10, 2, 11, 1),
    Sketcher.Constraint("Coincident", 11, 2, 8, 1),
    Sketcher.Constraint("Coincident", 12, 2, 13, 1),
    Sketcher.Constraint("Coincident", 13, 2, 14, 1),
    Sketcher.Constraint("Coincident", 14, 2, 15, 1),
    Sketcher.Constraint("Coincident", 15, 2, 12, 1),
    Sketcher.Constraint("Coincident", 16, 2, 17, 1),
    Sketcher.Constraint("Coincident", 17, 2, 18, 1),
    Sketcher.Constraint("Coincident", 18, 2, 19, 1),
    Sketcher.Constraint("Coincident", 19, 2, 16, 1),
    Sketcher.Constraint("Coincident", 20, 2, 21, 1),
    Sketcher.Constraint("Coincident", 21, 2, 22, 1),
    Sketcher.Constraint("Coincident", 22, 2, 23, 1),
    Sketcher.Constraint("Coincident", 23, 2, 20, 1),
    Sketcher.Constraint("Coincident", 24, 2, 25, 1),
    Sketcher.Constraint("Coincident", 25, 2, 26, 1),
    Sketcher.Constraint("Coincident", 26, 2, 27, 1),
    Sketcher.Constraint("Coincident", 27, 2, 24, 1),
    Sketcher.Constraint("Coincident", 28, 2, 29, 1),
    Sketcher.Constraint("Coincident", 29, 2, 30, 1),
    Sketcher.Constraint("Coincident", 30, 2, 31, 1),
    Sketcher.Constraint("Coincident", 31, 2, 28, 1),
    Sketcher.Constraint("Symmetric", 10, 2, 16, 2, -1),
    Sketcher.Constraint("Symmetric", 9, 2, 17, 2, -1),
    Sketcher.Constraint("Symmetric", 8, 2, 18, 2, -1),
    Sketcher.Constraint("Symmetric", 11, 2, 19, 2, -1),
    Sketcher.Constraint("Symmetric", 2, 2, 20, 2, -1),
    Sketcher.Constraint("Symmetric", 1, 2, 21, 2, -1),
    Sketcher.Constraint("Symmetric", 0, 2, 22, 2, -1),
    Sketcher.Constraint("Symmetric", 3, 2, 23, 2, -1),
    Sketcher.Constraint("Symmetric", 13, 2, 24, 2, -1),
    Sketcher.Constraint("Symmetric", 12, 2, 25, 2, -1),
    Sketcher.Constraint("Symmetric", 15, 2, 26, 2, -1),
    Sketcher.Constraint("Symmetric", 14, 2, 27, 2, -1),
    Sketcher.Constraint("Symmetric", 5, 2, 28, 2, -1),
    Sketcher.Constraint("Symmetric", 4, 2, 29, 2, -1),
    Sketcher.Constraint("Symmetric", 7, 2, 30, 2, -1),
    Sketcher.Constraint("Symmetric", 6, 2, 31, 2, -1),
    Sketcher.Constraint("Perpendicular", 0, 1),
    Sketcher.Constraint("Perpendicular", 1, 2),
    Sketcher.Constraint("Parallel", 3, 4),
    Sketcher.Constraint("Parallel", 2, 5),
    Sketcher.Constraint("Perpendicular", 5, 6),
    Sketcher.Constraint("Perpendicular", 6, 7),
    Sketcher.Constraint("Parallel", 7, 8),
    Sketcher.Constraint("Perpendicular", 8, 9),
    Sketcher.Constraint("Perpendicular", 9, 10),
    Sketcher.Constraint("Parallel", 4, 11),
    Sketcher.Constraint("Parallel", 11, 12),
    Sketcher.Constraint("Parallel", 10, 13),
    Sketcher.Constraint("Perpendicular", 13, 14),
    Sketcher.Constraint("Perpendicular", 14, 15),
    Sketcher.Constraint("Horizontal", 0, 2, 5, 2),
    Sketcher.Constraint("Horizontal", 1, 2, 6, 2),
    Sketcher.Constraint("Horizontal", 5, 2, 8, 2),
    Sketcher.Constraint("Horizontal", 6, 2, 9, 2),
    Sketcher.Constraint("Horizontal", 8, 2, 13, 2),
    Sketcher.Constraint("Horizontal", 9, 2, 14, 2),
    Sketcher.Constraint("Distance", 1, Q("1 mm")),
    Sketcher.Constraint("DistanceX", 5, 2, 0, 2, Q("10 mm")),
    Sketcher.Constraint("DistanceX", 8, 2, 0, 2, Q("5 mm")),
    Sketcher.Constraint("DistanceX", 13, 2, 5, 2, Q("5 mm")),
    Sketcher.Constraint("Distance", 15, Q("21.147999 mm")),
    Sketcher.Constraint("DistanceX", 4, 2, 3, 2, Q("8.428699 mm")),
    Sketcher.Constraint("DistanceX", 7, 2, 6, 2, Q("10.313401 mm")),
    Sketcher.Constraint("DistanceY", 5, 2, 10, 2, Q("21.5433 mm")),
    Sketcher.Constraint("DistanceX", 12, 2, 11, 2, Q("8.428699 mm")),
    Sketcher.Constraint("DistanceX", 11, 2, 18, 2, Q("11.0477 mm")),
    Sketcher.Constraint("DistanceY", 1, 2, -1, 1, Q("33.229472 mm")),
    Sketcher.Constraint("DistanceX", -1, 1, 2, 2, Q("35.271831 mm")),
])
pocket9 = doc.addObject("PartDesign::Pocket", "Pocket008")
body.addObject(pocket9)
pocket9.Profile = sketch18
pocket9.Length = 1
pocket9.Reversed = True

sketch19 = doc.addObject("Sketcher::SketchObject", "Sketch018")
body.addObject(sketch19)
sketch19.AttachmentSupport = (doc.XY_Plane, [""])
sketch19.MapMode = "FlatFace"
sketch19.AttachmentOffset = App.Placement(Vector(0, 0, 30.5), App.Rotation())
sketch19.addGeometry([
    Part.LineSegment(Vector(50.215249, 44.601767, 0), Vector(43.170813, 31.382579, 0)),
    Part.LineSegment(Vector(43.170813, 31.382579, 0), Vector(53.954887, 31.382579, 0)),
    Part.LineSegment(Vector(53.954887, 31.382579, 0), Vector(46.430297, 17.262361, 0)),
    Part.LineSegment(Vector(46.430297, 17.262361, 0), Vector(58.129367, 34.600408, 0)),
    Part.LineSegment(Vector(58.129367, 34.600408, 0), Vector(47.258325, 33.382851, 0)),
    Part.LineSegment(Vector(47.258325, 33.382851, 0), Vector(50.215249, 44.601767, 0)),
], False)
sketch19.addConstraint([
    Sketcher.Constraint("Coincident", 0, 2, 1, 1),
    Sketcher.Constraint("Coincident", 1, 2, 2, 1),
    Sketcher.Constraint("Coincident", 2, 2, 3, 1),
    Sketcher.Constraint("Coincident", 3, 2, 4, 1),
    Sketcher.Constraint("Coincident", 4, 2, 5, 1),
    Sketcher.Constraint("Coincident", 5, 2, 0, 1),
    Sketcher.Constraint("Horizontal", 1),
    Sketcher.Constraint("Parallel", 0, 2),
    Sketcher.Constraint("Distance", 2, Q("16 mm")),
    Sketcher.Constraint("Angle", 3, Q("55.989985 deg")),
    Sketcher.Constraint("Distance", 0, Q("14.979018 mm")),
    Sketcher.Constraint("Distance", 3, Q("20.915929 mm")),
    Sketcher.Constraint("DistanceX", 1, 1, 1, 2, Q("10.784074 mm")),
    Sketcher.Constraint("DistanceY", -1, 1, 0, 2, Q("31.382579 mm")),
    Sketcher.Constraint("DistanceY", -1, 1, 2, 2, Q("17.262361 mm")),
    Sketcher.Constraint("DistanceY", -1, 1, 4, 2, Q("33.382851 mm")),
    Sketcher.Constraint("DistanceX", -1, 1, 5, 2, Q("50.215249 mm")),
    Sketcher.Constraint("DistanceX", 0, 2, 4, 2, Q("4.087512 mm")),
])
pocket10 = doc.addObject("PartDesign::Pocket", "Pocket009")
body.addObject(pocket10)
pocket10.Profile = sketch19
pocket10.Length = 1
doc.recompute()

mirrored3 = doc.addObject("PartDesign::Mirrored", "Mirrored002")
body.addObject(mirrored3)
mirrored3.Originals = [pocket10]
mirrored3.MirrorPlane = (doc.XY_Plane, [""])
body.Tip = mirrored3
doc.recompute()

datumplane2 = doc.addObject("PartDesign::Plane", "DatumPlane001")
body.addObject(datumplane2)
datumplane2.AttachmentSupport = (doc.XZ_Plane, [""])
datumplane2.MapMode = "FlatFace"
datumplane2.AttachmentOffset = App.Placement(Vector(0, 0, -30.5), App.Rotation())
mirrored4 = doc.addObject("PartDesign::Mirrored", "Mirrored003")
body.addObject(mirrored4)
mirrored4.Originals = [pad7, pad8, pad9, pocket9]
mirrored4.MirrorPlane = (datumplane2, [""])
body.Tip = mirrored4

doc.recompute()
